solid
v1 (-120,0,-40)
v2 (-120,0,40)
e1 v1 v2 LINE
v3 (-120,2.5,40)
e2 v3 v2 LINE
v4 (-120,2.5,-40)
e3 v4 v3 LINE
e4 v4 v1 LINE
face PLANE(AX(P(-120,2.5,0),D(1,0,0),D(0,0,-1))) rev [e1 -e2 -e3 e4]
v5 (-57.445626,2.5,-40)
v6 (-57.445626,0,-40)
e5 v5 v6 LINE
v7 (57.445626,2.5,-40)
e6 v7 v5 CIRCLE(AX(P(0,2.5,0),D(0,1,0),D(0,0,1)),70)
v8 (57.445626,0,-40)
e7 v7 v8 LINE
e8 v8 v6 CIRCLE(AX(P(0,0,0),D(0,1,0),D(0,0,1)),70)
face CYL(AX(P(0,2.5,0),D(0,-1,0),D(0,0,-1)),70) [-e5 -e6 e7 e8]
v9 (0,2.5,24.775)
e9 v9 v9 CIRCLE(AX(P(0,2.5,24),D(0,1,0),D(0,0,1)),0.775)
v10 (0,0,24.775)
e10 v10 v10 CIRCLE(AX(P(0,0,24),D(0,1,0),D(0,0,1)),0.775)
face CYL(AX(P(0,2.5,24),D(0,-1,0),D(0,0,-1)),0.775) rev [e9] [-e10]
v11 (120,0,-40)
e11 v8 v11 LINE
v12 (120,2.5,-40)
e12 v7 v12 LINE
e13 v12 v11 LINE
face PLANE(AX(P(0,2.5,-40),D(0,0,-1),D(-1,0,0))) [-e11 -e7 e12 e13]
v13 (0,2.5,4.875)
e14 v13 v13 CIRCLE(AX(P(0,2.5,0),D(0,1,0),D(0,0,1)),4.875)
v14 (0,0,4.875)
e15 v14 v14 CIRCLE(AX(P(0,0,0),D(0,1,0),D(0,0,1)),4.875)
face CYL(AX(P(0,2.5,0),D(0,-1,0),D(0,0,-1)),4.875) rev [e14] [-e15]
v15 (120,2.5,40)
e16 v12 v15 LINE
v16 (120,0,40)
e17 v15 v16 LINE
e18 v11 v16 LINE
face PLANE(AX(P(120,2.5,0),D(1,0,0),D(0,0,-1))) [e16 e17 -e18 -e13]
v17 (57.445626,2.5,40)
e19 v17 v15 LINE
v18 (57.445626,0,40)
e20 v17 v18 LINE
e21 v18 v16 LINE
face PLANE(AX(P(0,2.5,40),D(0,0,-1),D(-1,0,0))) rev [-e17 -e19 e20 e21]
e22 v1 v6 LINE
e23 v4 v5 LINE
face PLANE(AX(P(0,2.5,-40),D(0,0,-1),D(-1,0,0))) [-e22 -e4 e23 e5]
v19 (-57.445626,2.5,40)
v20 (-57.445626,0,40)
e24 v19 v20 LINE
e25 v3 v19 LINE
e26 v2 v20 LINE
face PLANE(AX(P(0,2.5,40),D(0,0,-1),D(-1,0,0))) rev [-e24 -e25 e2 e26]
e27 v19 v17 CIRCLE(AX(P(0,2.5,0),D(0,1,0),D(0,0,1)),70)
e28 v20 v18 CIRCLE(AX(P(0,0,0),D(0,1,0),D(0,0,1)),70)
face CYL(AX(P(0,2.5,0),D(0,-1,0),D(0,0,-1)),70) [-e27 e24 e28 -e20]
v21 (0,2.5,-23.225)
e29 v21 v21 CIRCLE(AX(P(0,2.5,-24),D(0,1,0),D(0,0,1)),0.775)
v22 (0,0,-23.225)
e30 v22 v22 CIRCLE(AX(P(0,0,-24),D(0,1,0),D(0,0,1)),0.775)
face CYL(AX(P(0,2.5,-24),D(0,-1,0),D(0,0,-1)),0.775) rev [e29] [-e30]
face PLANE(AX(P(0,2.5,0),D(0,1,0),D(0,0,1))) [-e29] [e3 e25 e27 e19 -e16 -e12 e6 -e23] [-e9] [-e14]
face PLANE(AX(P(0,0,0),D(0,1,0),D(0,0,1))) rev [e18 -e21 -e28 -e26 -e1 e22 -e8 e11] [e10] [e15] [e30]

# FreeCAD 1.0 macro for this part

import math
import FreeCAD as App
import Part
import Sketcher

doc = App.newDocument("Part")
body = doc.addObject("PartDesign::Body", "Body")

# Sketch on XZ plane
sketch1 = body.newObject("Sketcher::SketchObject", "Sketch")
sketch1.AttachmentSupport = (doc.getObject("XZ_Plane"), [""])
sketch1.MapMode = "FlatFace"
sketch1.addGeometry([
    Part.LineSegment(App.Vector(-57.4, -40, 0), App.Vector(-120, -40, 0)),  # 0
    Part.LineSegment(App.Vector(-120, -40, 0), App.Vector(-120, 40, 0)),  # 1
    Part.LineSegment(App.Vector(-120, 40, 0), App.Vector(-57.4, 40, 0)),  # 2
    Part.ArcOfCircle(Part.Circle(App.Vector(0, 0, 0), App.Vector(0, 0, 1), 70), math.radians(35), math.radians(145)),  # 3
    Part.LineSegment(App.Vector(57.4, 40, 0), App.Vector(120, 40, 0)),  # 4
    Part.LineSegment(App.Vector(120, 40, 0), App.Vector(120, -40, 0)),  # 5
    Part.LineSegment(App.Vector(120, -40, 0), App.Vector(57.4, -40, 0)),  # 6
    Part.ArcOfCircle(Part.Circle(App.Vector(0, 0, 0), App.Vector(0, 0, 1), 70), math.radians(-145), math.radians(-35)),  # 7
    Part.Circle(App.Vector(0, 24, 0), App.Vector(0, 0, 1), 0.8),  # 8
    Part.Circle(App.Vector(0, 0, 0), App.Vector(0, 0, 1), 4.9),  # 9
    Part.Circle(App.Vector(0, -24, 0), App.Vector(0, 0, 1), 0.8),  # 10
], False)
sketch1.addConstraint([
    Sketcher.Constraint("Coincident", 0, 2, 1, 1),
    Sketcher.Constraint("Coincident", 1, 2, 2, 1),
    Sketcher.Constraint("Coincident", 2, 2, 3, 2),
    Sketcher.Constraint("Coincident", 3, 1, 4, 1),
    Sketcher.Constraint("Coincident", 4, 2, 5, 1),
    Sketcher.Constraint("Coincident", 5, 2, 6, 1),
    Sketcher.Constraint("Coincident", 6, 2, 7, 2),
    Sketcher.Constraint("Coincident", 7, 1, 0, 1),
    Sketcher.Constraint("Horizontal", 0),
    Sketcher.Constraint("Vertical", 1),
    Sketcher.Constraint("Horizontal", 2),
    Sketcher.Constraint("Horizontal", 4),
    Sketcher.Constraint("Vertical", 5),
    Sketcher.Constraint("Horizontal", 6),
    Sketcher.Constraint("Coincident", 3, 3, -1, 1),
    Sketcher.Constraint("Coincident", 7, 3, -1, 1),
    Sketcher.Constraint("Coincident", 9, 3, -1, 1),
    Sketcher.Constraint("Equal", 3, 7),
    Sketcher.Constraint("Equal", 8, 10),
    Sketcher.Constraint("Symmetric", 8, 3, 10, 3, -1, 1),
    Sketcher.Constraint("Symmetric", 0, 2, 4, 2, -1, 1),
    Sketcher.Constraint("PointOnObject", 8, 3, -2),
    Sketcher.Constraint("Horizontal", 2, 2, 3, 1),
    Sketcher.Constraint("Horizontal", 0, 2, 5, 2),
    Sketcher.Constraint("Radius", 3, 70.0),
    Sketcher.Constraint("Diameter", 8, 1.55),
    Sketcher.Constraint("Diameter", 9, 9.75),
    Sketcher.Constraint("DistanceY", 1, 1, 1, 2, 80.0),
    Sketcher.Constraint("DistanceY", -1, 1, 8, 3, 24.0),
    Sketcher.Constraint("DistanceX", 0, 2, -1, 1, 120.0),
])
pad1 = body.newObject("PartDesign::Pad", "Pad")
pad1.Profile = sketch1
pad1.Length = 2.5
pad1.Reversed = True

doc.recompute()
